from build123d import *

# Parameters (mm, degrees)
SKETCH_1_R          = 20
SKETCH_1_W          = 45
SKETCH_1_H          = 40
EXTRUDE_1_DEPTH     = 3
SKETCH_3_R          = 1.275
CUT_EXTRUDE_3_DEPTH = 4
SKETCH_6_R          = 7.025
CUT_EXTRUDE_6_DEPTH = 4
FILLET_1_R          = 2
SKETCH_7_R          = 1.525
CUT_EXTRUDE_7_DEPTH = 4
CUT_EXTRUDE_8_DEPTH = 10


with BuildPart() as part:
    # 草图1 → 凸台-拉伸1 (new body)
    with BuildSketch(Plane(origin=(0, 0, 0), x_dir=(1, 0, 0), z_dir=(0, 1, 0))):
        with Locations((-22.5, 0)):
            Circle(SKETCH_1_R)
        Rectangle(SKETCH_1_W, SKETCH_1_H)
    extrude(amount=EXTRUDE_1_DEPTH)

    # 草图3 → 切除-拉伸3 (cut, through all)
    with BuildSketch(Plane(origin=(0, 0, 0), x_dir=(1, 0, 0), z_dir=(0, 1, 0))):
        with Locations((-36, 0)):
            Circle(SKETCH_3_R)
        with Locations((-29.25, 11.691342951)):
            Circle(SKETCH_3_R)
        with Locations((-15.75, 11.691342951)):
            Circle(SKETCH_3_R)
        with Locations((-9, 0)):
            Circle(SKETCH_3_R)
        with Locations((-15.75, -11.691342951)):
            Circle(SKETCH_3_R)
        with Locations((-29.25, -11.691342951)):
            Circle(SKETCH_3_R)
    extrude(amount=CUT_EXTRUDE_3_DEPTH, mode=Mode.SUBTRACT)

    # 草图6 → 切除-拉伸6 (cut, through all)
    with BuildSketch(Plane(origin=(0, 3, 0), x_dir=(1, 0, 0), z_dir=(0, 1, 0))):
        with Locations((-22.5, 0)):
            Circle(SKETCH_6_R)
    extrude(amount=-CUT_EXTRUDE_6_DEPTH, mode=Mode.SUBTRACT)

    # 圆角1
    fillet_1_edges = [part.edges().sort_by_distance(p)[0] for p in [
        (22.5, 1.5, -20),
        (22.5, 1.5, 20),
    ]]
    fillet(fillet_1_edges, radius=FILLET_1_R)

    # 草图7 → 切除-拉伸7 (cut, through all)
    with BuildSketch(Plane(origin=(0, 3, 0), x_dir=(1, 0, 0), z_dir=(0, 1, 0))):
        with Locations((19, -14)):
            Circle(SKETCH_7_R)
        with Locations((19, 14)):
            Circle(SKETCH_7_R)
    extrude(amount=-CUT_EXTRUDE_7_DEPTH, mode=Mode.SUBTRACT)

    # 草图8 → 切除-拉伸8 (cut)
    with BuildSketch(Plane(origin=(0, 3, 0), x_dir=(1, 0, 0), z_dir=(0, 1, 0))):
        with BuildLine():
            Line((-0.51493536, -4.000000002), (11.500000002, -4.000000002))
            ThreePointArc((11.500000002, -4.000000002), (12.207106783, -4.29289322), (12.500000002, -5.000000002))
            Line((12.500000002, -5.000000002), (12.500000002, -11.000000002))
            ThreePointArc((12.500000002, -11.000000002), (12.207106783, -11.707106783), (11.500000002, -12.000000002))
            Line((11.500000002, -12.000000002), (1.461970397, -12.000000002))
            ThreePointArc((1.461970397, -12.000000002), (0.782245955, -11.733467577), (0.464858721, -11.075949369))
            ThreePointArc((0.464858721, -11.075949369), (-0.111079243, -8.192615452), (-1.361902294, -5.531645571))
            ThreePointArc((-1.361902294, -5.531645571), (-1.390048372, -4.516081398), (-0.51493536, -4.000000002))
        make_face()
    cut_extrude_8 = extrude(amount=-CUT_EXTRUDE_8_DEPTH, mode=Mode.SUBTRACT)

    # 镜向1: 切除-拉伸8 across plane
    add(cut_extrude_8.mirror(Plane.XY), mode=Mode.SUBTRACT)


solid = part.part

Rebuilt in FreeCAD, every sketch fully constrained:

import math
import FreeCAD as App
import Part
import Sketcher
Q = App.Units.Quantity


def edges_at(feature, points):
    """Names of the edges that pass closest to the given points."""
    edges = feature.Shape.Edges
    near = lambda p: min(range(len(edges)), key=lambda i: edges[i].distToShape(Part.Vertex(*p))[0])
    return sorted({f"Edge{near(p) + 1}" for p in points})

doc = App.newDocument("Part")
body = doc.addObject("PartDesign::Body", "Body")

sketch1 = doc.addObject("Sketcher::SketchObject", "Sketch")
body.addObject(sketch1)
sketch1.AttachmentSupport = (doc.XZ_Plane, [""])
sketch1.MapMode = "FlatFace"
sketch1.addGeometry([
    Part.LineSegment(App.Vector(-22, 20, 0), App.Vector(22, 20, 0)),
    Part.LineSegment(App.Vector(22, 20, 0), App.Vector(22, -20, 0)),
    Part.LineSegment(App.Vector(22, -20, 0), App.Vector(-22, -20, 0)),
    Part.ArcOfCircle(Part.Circle(App.Vector(-22, 0, 0), App.Vector(0, 0, 1), 20), math.radians(90), math.radians(270)),
], False)
sketch1.addConstraint([
    Sketcher.Constraint("Coincident", 0, 2, 1, 1),
    Sketcher.Constraint("Coincident", 1, 2, 2, 1),
    Sketcher.Constraint("Tangent", 2, 2, 3, 2),
    Sketcher.Constraint("Tangent", 3, 1, 0, 1),
    Sketcher.Constraint("Horizontal", 0),
    Sketcher.Constraint("Vertical", 1),
    Sketcher.Constraint("Horizontal", 2),
    Sketcher.Constraint("Symmetric", 0, 2, 2, 2, -1, 1),
    Sketcher.Constraint("Radius", 3, Q("20 mm")),
    Sketcher.Constraint("DistanceX", 0, 1, 0, 2, Q("45 mm")),
])
pad1 = doc.addObject("PartDesign::Pad", "Pad")
body.addObject(pad1)
pad1.Profile = sketch1
pad1.Length = 3
pad1.Reversed = True

sketch2 = doc.addObject("Sketcher::SketchObject", "Sketch001")
body.addObject(sketch2)
sketch2.AttachmentSupport = (doc.XZ_Plane, [""])
sketch2.MapMode = "FlatFace"
sketch2.addGeometry([
    Part.Circle(App.Vector(-36, 0, 0), App.Vector(0, 0, 1), 1.3),
    Part.Circle(App.Vector(-29.2, -11.7, 0), App.Vector(0, 0, 1), 1.3),
    Part.Circle(App.Vector(-15.8, -11.7, 0), App.Vector(0, 0, 1), 1.3),
    Part.Circle(App.Vector(-9, 0, 0), App.Vector(0, 0, 1), 1.3),
    Part.Circle(App.Vector(-15.8, 11.7, 0), App.Vector(0, 0, 1), 1.3),
    Part.Circle(App.Vector(-29.2, 11.7, 0), App.Vector(0, 0, 1), 1.3),
], False)
sketch2.addConstraint([
    Sketcher.Constraint("Equal", 0, 1),
    Sketcher.Constraint("Equal", 1, 2),
    Sketcher.Constraint("Equal", 2, 3),
    Sketcher.Constraint("Equal", 3, 4),
    Sketcher.Constraint("Equal", 4, 5),
    Sketcher.Constraint("Symmetric", 2, 3, 4, 3, -1),
    Sketcher.Constraint("Symmetric", 1, 3, 5, 3, -1),
    Sketcher.Constraint("PointOnObject", 0, 3, -1),
    Sketcher.Constraint("PointOnObject", 3, 3, -1),
    Sketcher.Constraint("Horizontal", 1, 3, 2, 3),
    Sketcher.Constraint("Diameter", 0, Q("2.55 mm")),
    Sketcher.Constraint("DistanceX", 0, 3, -1, 1, Q("36 mm")),
    Sketcher.Constraint("DistanceX", 3, 3, -1, 1, Q("9 mm")),
    Sketcher.Constraint("DistanceX", 1, 3, 2, 3, Q("13.5 mm")),
    Sketcher.Constraint("DistanceX", 1, 3, -1, 1, Q("29.25 mm")),
    Sketcher.Constraint("DistanceY", 1, 3, -1, 1, Q("11.691343 mm")),
])
pocket1 = doc.addObject("PartDesign::Pocket", "Pocket")
body.addObject(pocket1)
pocket1.Profile = sketch2
pocket1.Type = "ThroughAll"

sketch3 = doc.addObject("Sketcher::SketchObject", "Sketch002")
body.addObject(sketch3)
sketch3.AttachmentSupport = (doc.XZ_Plane, [""])
sketch3.MapMode = "FlatFace"
sketch3.AttachmentOffset = App.Placement(App.Vector(0, 0, -3), App.Rotation())
sketch3.addGeometry(Part.Circle(App.Vector(-22, 0, 0), App.Vector(0, 0, 1), 7), False)
sketch3.addConstraint([
    Sketcher.Constraint("PointOnObject", 0, 3, -1),
    Sketcher.Constraint("Diameter", 0, Q("14.05 mm")),
    Sketcher.Constraint("DistanceX", 0, 3, -1, 1, Q("22.5 mm")),
])
pocket2 = doc.addObject("PartDesign::Pocket", "Pocket001")
body.addObject(pocket2)
pocket2.Profile = sketch3
pocket2.Type = "ThroughAll"
pocket2.Reversed = True
doc.recompute()

fillet = doc.addObject("PartDesign::Fillet", "Fillet")
body.addObject(fillet)
fillet.Base = (pocket2, edges_at(pocket2, [(22.5, 1.5, -20), (22.5, 1.5, 20)]))
fillet.Radius = 2

sketch4 = doc.addObject("Sketcher::SketchObject", "Sketch003")
body.addObject(sketch4)
sketch4.AttachmentSupport = (doc.XZ_Plane, [""])
sketch4.MapMode = "FlatFace"
sketch4.AttachmentOffset = App.Placement(App.Vector(0, 0, -3), App.Rotation())
sketch4.addGeometry([
    Part.Circle(App.Vector(19, 14, 0), App.Vector(0, 0, 1), 1.5),
    Part.Circle(App.Vector(19, -14, 0), App.Vector(0, 0, 1), 1.5),
], False)
sketch4.addConstraint([
    Sketcher.Constraint("Equal", 0, 1),
    Sketcher.Constraint("Symmetric", 0, 3, 1, 3, -1),
    Sketcher.Constraint("Diameter", 0, Q("3.05 mm")),
    Sketcher.Constraint("DistanceX", -1, 1, 0, 3, Q("19 mm")),
    Sketcher.Constraint("DistanceY", -1, 1, 0, 3, Q("14 mm")),
])
pocket3 = doc.addObject("PartDesign::Pocket", "Pocket002")
body.addObject(pocket3)
pocket3.Profile = sketch4
pocket3.Type = "ThroughAll"
pocket3.Reversed = True

sketch5 = doc.addObject("Sketcher::SketchObject", "Sketch004")
body.addObject(sketch5)
sketch5.AttachmentSupport = (doc.XZ_Plane, [""])
sketch5.MapMode = "FlatFace"
sketch5.AttachmentOffset = App.Placement(App.Vector(0, 0, -3), App.Rotation())
sketch5.addGeometry([
    Part.LineSegment(App.Vector(11.5, 4, 0), App.Vector(-0.5, 4, 0)),
    Part.ArcOfCircle(Part.Circle(App.Vector(-0.5, 5, 0), App.Vector(0, 0, 1), 1), math.radians(148), math.radians(270)),
    Part.ArcOfCircle(Part.Circle(App.Vector(-11.7, 12, 0), App.Vector(0, 0, 1), 12.2), math.radians(-32), math.radians(-4)),
    Part.ArcOfCircle(Part.Circle(App.Vector(1.5, 11, 0), App.Vector(0, 0, 1), 1), math.radians(90), math.radians(176)),
    Part.LineSegment(App.Vector(1.5, 12, 0), App.Vector(11.5, 12, 0)),
    Part.ArcOfCircle(Part.Circle(App.Vector(11.5, 11, 0), App.Vector(0, 0, 1), 1), math.radians(0), math.radians(90)),
    Part.LineSegment(App.Vector(12.5, 11, 0), App.Vector(12.5, 5, 0)),
    Part.ArcOfCircle(Part.Circle(App.Vector(11.5, 5, 0), App.Vector(0, 0, 1), 1), math.radians(-90), math.radians(0)),
], False)
sketch5.addConstraint([
    Sketcher.Constraint("Tangent", 0, 2, 1, 2),
    Sketcher.Constraint("Tangent", 1, 1, 2, 1),
    Sketcher.Constraint("Tangent", 2, 2, 3, 2),
    Sketcher.Constraint("Tangent", 3, 1, 4, 1),
    Sketcher.Constraint("Tangent", 4, 2, 5, 2),
    Sketcher.Constraint("Tangent", 5, 1, 6, 1),
    Sketcher.Constraint("Tangent", 6, 2, 7, 2),
    Sketcher.Constraint("Tangent", 7, 1, 0, 1),
    Sketcher.Constraint("Horizontal", 0),
    Sketcher.Constraint("Horizontal", 4),
    Sketcher.Constraint("Vertical", 6),
    Sketcher.Constraint("Equal", 1, 3),
    Sketcher.Constraint("Equal", 3, 5),
    Sketcher.Constraint("Equal", 5, 7),
    Sketcher.Constraint("Horizontal", 2, 3, 3, 1),
    Sketcher.Constraint("Radius", 1, Q("1 mm")),
    Sketcher.Constraint("DistanceY", 6, 2, 6, 1, Q("6 mm")),
    Sketcher.Constraint("DistanceY", -1, 1, 1, 3, Q("5 mm")),
    Sketcher.Constraint("DistanceX", -1, 1, 5, 3, Q("11.5 mm")),
    Sketcher.Constraint("Radius", 2, Q("12.166667 mm")),
    Sketcher.Constraint("DistanceX", 4, 1, 4, 2, Q("10.03803 mm")),
])
pocket4 = doc.addObject("PartDesign::Pocket", "Pocket003")
body.addObject(pocket4)
pocket4.Profile = sketch5
pocket4.Length = 10
pocket4.Reversed = True
doc.recompute()

mirrored = doc.addObject("PartDesign::Mirrored", "Mirrored")
body.addObject(mirrored)
mirrored.Originals = [pocket4]
mirrored.MirrorPlane = (doc.XY_Plane, [""])
body.Tip = mirrored

doc.recompute()
